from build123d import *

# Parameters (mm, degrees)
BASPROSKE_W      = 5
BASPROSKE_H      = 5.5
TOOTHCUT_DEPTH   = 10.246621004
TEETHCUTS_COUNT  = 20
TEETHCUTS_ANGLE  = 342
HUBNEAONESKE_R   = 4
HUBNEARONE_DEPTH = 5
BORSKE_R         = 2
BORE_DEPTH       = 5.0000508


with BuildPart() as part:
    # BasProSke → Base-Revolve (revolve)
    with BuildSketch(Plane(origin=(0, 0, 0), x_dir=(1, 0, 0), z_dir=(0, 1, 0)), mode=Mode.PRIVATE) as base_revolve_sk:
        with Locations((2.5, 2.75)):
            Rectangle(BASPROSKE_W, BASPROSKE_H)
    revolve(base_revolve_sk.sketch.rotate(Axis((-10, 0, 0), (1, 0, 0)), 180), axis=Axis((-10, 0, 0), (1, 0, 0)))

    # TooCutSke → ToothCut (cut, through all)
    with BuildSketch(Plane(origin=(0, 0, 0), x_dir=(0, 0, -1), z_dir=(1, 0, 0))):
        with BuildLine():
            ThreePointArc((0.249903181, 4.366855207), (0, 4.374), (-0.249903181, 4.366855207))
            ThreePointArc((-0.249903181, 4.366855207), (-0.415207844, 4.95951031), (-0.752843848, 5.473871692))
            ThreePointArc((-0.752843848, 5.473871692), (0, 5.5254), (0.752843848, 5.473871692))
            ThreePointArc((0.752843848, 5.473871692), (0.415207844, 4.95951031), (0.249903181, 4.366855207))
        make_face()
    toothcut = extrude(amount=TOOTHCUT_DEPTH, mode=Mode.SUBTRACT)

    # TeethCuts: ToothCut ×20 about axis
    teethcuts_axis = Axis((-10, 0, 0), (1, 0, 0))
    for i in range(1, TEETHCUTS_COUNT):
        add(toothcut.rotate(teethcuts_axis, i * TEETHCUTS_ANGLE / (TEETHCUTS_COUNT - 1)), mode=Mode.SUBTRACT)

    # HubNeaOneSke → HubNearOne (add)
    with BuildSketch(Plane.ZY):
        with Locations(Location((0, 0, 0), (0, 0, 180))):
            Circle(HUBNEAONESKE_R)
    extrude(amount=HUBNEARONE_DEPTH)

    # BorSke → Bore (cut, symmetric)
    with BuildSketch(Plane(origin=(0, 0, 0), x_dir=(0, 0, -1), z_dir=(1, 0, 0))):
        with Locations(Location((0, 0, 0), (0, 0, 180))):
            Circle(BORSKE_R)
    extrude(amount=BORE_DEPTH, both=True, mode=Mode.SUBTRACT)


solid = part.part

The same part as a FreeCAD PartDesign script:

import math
import FreeCAD as App
import Part
import Sketcher

V = App.Vector


def add_polygon(sketch, points):
    """Adds a closed chain of lines whose ends are joined by coincident constraints."""
    first, n = sketch.GeometryCount, len(points)
    for a, b in zip(points, points[1:] + points[:1]):
        sketch.addGeometry(Part.LineSegment(App.Vector(*a, 0), App.Vector(*b, 0)), False)
    for i in range(n):
        sketch.addConstraint(Sketcher.Constraint("Coincident", first + i, 2, first + (i + 1) % n, 1))

doc = App.newDocument("Part")
body = doc.addObject("PartDesign::Body", "Body")

# Sketch on XZ plane
sketch1 = body.newObject("Sketcher::SketchObject", "Sketch")
sketch1.AttachmentSupport = (doc.getObject("XZ_Plane"), [""])
sketch1.MapMode = "FlatFace"
add_polygon(sketch1, [(0, -6), (0, 0), (5, 0), (5, -6)])  # lines 0-3
sketch1.addConstraint(Sketcher.Constraint("Vertical", 0))
sketch1.addConstraint(Sketcher.Constraint("Horizontal", 1))
sketch1.addConstraint(Sketcher.Constraint("Vertical", 2))
sketch1.addConstraint(Sketcher.Constraint("Horizontal", 3))
sketch1.addConstraint(Sketcher.Constraint("Coincident", 0, 2, -1, 1))
sketch1.addConstraint(Sketcher.Constraint("DistanceX", 1, 1, 1, 2, 5.0))
sketch1.addConstraint(Sketcher.Constraint("DistanceY", 0, 1, 0, 2, 5.5))
revolution = body.newObject("PartDesign::Revolution", "Revolution")
revolution.Profile = sketch1
revolution.ReferenceAxis = (sketch1, ["H_Axis"])
revolution.Angle = 360

# Sketch on YZ plane
sketch2 = body.newObject("Sketcher::SketchObject", "Sketch001")
sketch2.AttachmentSupport = (doc.getObject("YZ_Plane"), [""])
sketch2.MapMode = "FlatFace"
sketch2.addGeometry(Part.ArcOfCircle(Part.Circle(V(0, 0, 0), V(0, 0, 1), 4.37), math.radians(-3.28), math.radians(3.28)), False)
sketch2.addGeometry(Part.ArcOfCircle(Part.Circle(V(4.13, -2.24, 0), V(0, 0, 1), 2), math.radians(48), math.radians(83)), False)
sketch2.addGeometry(Part.ArcOfCircle(Part.Circle(V(0, 0, 0), V(0, 0, 1), 5.53), math.radians(-7.83), math.radians(7.83)), False)
sketch2.addGeometry(Part.ArcOfCircle(Part.Circle(V(4.13, 2.24, 0), V(0, 0, 1), 2), math.radians(-83), math.radians(-48)), False)
sketch2.addConstraint(Sketcher.Constraint("Coincident", 0, 1, 1, 2))
sketch2.addConstraint(Sketcher.Constraint("Coincident", 1, 1, 2, 1))
sketch2.addConstraint(Sketcher.Constraint("Coincident", 2, 2, 3, 2))
sketch2.addConstraint(Sketcher.Constraint("Coincident", 3, 1, 0, 2))
sketch2.addConstraint(Sketcher.Constraint("Coincident", 0, 3, -1, 1))
sketch2.addConstraint(Sketcher.Constraint("Coincident", 2, 3, -1, 1))
sketch2.addConstraint(Sketcher.Constraint("Equal", 1, 3))
sketch2.addConstraint(Sketcher.Constraint("Symmetric", 1, 3, 3, 3, -1))
sketch2.addConstraint(Sketcher.Constraint("Radius", 1, 2.0))
sketch2.addConstraint(Sketcher.Constraint("Radius", 0, 4.374))
sketch2.addConstraint(Sketcher.Constraint("Radius", 2, 5.5254))
sketch2.addConstraint(Sketcher.Constraint("DistanceY", 0, 1, 3, 3, 2.485998))
sketch2.addConstraint(Sketcher.Constraint("DistanceX", -1, 1, 1, 1, 5.473872))
pocket1 = body.newObject("PartDesign::Pocket", "Pocket")
pocket1.Profile = sketch2
pocket1.Type = "ThroughAll"
pocket1.Reversed = True
doc.recompute()

polarpattern = body.newObject("PartDesign::PolarPattern", "PolarPattern")
polarpattern.Originals = [pocket1]
polarpattern.Axis = (doc.getObject("X_Axis"), [""])
polarpattern.Angle = 360
polarpattern.Occurrences = 20
body.Tip = polarpattern

# Sketch on YZ plane
sketch3 = body.newObject("Sketcher::SketchObject", "Sketch002")
sketch3.AttachmentSupport = (doc.getObject("YZ_Plane"), [""])
sketch3.MapMode = "FlatFace"
sketch3.addGeometry(Part.Circle(V(0, 0, 0), V(0, 0, 1), 4), False)
sketch3.addConstraint(Sketcher.Constraint("Coincident", 0, 3, -1, 1))
sketch3.addConstraint(Sketcher.Constraint("Diameter", 0, 8.0))
pad1 = body.newObject("PartDesign::Pad", "Pad")
pad1.Profile = sketch3
pad1.Length = 5
pad1.Reversed = True

# Sketch on YZ plane
sketch4 = body.newObject("Sketcher::SketchObject", "Sketch003")
sketch4.AttachmentSupport = (doc.getObject("YZ_Plane"), [""])
sketch4.MapMode = "FlatFace"
sketch4.addGeometry(Part.Circle(V(0, 0, 0), V(0, 0, 1), 2), False)
sketch4.addConstraint(Sketcher.Constraint("Coincident", 0, 3, -1, 1))
sketch4.addConstraint(Sketcher.Constraint("Diameter", 0, 4.0))
pocket2 = body.newObject("PartDesign::Pocket", "Pocket001")
pocket2.Profile = sketch4
pocket2.Length = 10.000102
pocket2.Midplane = True

doc.recompute()
